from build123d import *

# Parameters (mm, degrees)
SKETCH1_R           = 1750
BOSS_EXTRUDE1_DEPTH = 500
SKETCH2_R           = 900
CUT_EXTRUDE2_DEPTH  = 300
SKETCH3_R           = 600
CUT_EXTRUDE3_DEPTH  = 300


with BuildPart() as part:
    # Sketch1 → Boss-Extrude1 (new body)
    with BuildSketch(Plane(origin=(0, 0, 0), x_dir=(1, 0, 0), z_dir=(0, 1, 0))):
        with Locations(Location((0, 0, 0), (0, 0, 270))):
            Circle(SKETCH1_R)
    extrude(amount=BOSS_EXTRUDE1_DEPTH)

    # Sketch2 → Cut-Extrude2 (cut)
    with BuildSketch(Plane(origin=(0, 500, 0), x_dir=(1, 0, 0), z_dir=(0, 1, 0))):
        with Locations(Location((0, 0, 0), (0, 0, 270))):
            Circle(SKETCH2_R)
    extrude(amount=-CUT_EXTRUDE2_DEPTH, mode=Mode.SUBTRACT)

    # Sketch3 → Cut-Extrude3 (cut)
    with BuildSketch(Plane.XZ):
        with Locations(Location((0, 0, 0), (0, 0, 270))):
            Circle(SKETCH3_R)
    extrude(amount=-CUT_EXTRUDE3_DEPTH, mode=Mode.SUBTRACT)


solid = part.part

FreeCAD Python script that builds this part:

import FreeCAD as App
import Part
import Sketcher

V = App.Vector
Q = App.Units.Quantity

doc = App.newDocument("Part")
params = doc.addObject("Spreadsheet::Sheet", "Params")
for row, (alias, value) in enumerate([
    ("sketch1_diameter", "3500 mm"),
    ("pad1_length", "500 mm"),
    ("sketch2_diameter", "1800 mm"),
    ("pocket1_length", "300 mm"),
    ("sketch3_diameter", "1200 mm"),
    ("pocket2_length", "300 mm"),
], start=1):
    params.set(f"A{row}", alias)
    params.set(f"B{row}", "=" + value)
    params.setAlias(f"B{row}", alias)

body = doc.addObject("PartDesign::Body", "Body")

sketch1 = doc.addObject("Sketcher::SketchObject", "Sketch")
body.addObject(sketch1)
sketch1.AttachmentSupport = (doc.XZ_Plane, [""])
sketch1.MapMode = "FlatFace"
sketch1.addGeometry(Part.Circle(V(0, 0, 0), V(0, 0, 1), 1750), False)
sketch1.addConstraint(Sketcher.Constraint("Coincident", 0, 3, -1, 1))
sketch1.addConstraint(Sketcher.Constraint("Diameter", 0, Q("3500 mm")))
sketch1.setExpression("Constraints[1]", "Params.sketch1_diameter")
pad1 = doc.addObject("PartDesign::Pad", "Pad")
body.addObject(pad1)
pad1.Profile = sketch1
pad1.setExpression("Length", "Params.pad1_length")
pad1.Reversed = True

sketch2 = doc.addObject("Sketcher::SketchObject", "Sketch001")
body.addObject(sketch2)
sketch2.AttachmentSupport = (doc.XZ_Plane, [""])
sketch2.MapMode = "FlatFace"
sketch2.AttachmentOffset = App.Placement(V(0, 0, -500), App.Rotation())
sketch2.addGeometry(Part.Circle(V(0, 0, 0), V(0, 0, 1), 900), False)
sketch2.addConstraint(Sketcher.Constraint("Coincident", 0, 3, -1, 1))
sketch2.addConstraint(Sketcher.Constraint("Diameter", 0, Q("1800 mm")))
sketch2.setExpression("Constraints[1]", "Params.sketch2_diameter")
pocket1 = doc.addObject("PartDesign::Pocket", "Pocket")
body.addObject(pocket1)
pocket1.Profile = sketch2
pocket1.setExpression("Length", "Params.pocket1_length")
pocket1.Reversed = True

sketch3 = doc.addObject("Sketcher::SketchObject", "Sketch002")
body.addObject(sketch3)
sketch3.AttachmentSupport = (doc.XZ_Plane, [""])
sketch3.MapMode = "FlatFace"
sketch3.addGeometry(Part.Circle(V(0, 0, 0), V(0, 0, 1), 600), False)
sketch3.addConstraint(Sketcher.Constraint("Coincident", 0, 3, -1, 1))
sketch3.addConstraint(Sketcher.Constraint("Diameter", 0, Q("1200 mm")))
sketch3.setExpression("Constraints[1]", "Params.sketch3_diameter")
pocket2 = doc.addObject("PartDesign::Pocket", "Pocket001")
body.addObject(pocket2)
pocket2.Profile = sketch3
pocket2.setExpression("Length", "Params.pocket2_length")

doc.recompute()
